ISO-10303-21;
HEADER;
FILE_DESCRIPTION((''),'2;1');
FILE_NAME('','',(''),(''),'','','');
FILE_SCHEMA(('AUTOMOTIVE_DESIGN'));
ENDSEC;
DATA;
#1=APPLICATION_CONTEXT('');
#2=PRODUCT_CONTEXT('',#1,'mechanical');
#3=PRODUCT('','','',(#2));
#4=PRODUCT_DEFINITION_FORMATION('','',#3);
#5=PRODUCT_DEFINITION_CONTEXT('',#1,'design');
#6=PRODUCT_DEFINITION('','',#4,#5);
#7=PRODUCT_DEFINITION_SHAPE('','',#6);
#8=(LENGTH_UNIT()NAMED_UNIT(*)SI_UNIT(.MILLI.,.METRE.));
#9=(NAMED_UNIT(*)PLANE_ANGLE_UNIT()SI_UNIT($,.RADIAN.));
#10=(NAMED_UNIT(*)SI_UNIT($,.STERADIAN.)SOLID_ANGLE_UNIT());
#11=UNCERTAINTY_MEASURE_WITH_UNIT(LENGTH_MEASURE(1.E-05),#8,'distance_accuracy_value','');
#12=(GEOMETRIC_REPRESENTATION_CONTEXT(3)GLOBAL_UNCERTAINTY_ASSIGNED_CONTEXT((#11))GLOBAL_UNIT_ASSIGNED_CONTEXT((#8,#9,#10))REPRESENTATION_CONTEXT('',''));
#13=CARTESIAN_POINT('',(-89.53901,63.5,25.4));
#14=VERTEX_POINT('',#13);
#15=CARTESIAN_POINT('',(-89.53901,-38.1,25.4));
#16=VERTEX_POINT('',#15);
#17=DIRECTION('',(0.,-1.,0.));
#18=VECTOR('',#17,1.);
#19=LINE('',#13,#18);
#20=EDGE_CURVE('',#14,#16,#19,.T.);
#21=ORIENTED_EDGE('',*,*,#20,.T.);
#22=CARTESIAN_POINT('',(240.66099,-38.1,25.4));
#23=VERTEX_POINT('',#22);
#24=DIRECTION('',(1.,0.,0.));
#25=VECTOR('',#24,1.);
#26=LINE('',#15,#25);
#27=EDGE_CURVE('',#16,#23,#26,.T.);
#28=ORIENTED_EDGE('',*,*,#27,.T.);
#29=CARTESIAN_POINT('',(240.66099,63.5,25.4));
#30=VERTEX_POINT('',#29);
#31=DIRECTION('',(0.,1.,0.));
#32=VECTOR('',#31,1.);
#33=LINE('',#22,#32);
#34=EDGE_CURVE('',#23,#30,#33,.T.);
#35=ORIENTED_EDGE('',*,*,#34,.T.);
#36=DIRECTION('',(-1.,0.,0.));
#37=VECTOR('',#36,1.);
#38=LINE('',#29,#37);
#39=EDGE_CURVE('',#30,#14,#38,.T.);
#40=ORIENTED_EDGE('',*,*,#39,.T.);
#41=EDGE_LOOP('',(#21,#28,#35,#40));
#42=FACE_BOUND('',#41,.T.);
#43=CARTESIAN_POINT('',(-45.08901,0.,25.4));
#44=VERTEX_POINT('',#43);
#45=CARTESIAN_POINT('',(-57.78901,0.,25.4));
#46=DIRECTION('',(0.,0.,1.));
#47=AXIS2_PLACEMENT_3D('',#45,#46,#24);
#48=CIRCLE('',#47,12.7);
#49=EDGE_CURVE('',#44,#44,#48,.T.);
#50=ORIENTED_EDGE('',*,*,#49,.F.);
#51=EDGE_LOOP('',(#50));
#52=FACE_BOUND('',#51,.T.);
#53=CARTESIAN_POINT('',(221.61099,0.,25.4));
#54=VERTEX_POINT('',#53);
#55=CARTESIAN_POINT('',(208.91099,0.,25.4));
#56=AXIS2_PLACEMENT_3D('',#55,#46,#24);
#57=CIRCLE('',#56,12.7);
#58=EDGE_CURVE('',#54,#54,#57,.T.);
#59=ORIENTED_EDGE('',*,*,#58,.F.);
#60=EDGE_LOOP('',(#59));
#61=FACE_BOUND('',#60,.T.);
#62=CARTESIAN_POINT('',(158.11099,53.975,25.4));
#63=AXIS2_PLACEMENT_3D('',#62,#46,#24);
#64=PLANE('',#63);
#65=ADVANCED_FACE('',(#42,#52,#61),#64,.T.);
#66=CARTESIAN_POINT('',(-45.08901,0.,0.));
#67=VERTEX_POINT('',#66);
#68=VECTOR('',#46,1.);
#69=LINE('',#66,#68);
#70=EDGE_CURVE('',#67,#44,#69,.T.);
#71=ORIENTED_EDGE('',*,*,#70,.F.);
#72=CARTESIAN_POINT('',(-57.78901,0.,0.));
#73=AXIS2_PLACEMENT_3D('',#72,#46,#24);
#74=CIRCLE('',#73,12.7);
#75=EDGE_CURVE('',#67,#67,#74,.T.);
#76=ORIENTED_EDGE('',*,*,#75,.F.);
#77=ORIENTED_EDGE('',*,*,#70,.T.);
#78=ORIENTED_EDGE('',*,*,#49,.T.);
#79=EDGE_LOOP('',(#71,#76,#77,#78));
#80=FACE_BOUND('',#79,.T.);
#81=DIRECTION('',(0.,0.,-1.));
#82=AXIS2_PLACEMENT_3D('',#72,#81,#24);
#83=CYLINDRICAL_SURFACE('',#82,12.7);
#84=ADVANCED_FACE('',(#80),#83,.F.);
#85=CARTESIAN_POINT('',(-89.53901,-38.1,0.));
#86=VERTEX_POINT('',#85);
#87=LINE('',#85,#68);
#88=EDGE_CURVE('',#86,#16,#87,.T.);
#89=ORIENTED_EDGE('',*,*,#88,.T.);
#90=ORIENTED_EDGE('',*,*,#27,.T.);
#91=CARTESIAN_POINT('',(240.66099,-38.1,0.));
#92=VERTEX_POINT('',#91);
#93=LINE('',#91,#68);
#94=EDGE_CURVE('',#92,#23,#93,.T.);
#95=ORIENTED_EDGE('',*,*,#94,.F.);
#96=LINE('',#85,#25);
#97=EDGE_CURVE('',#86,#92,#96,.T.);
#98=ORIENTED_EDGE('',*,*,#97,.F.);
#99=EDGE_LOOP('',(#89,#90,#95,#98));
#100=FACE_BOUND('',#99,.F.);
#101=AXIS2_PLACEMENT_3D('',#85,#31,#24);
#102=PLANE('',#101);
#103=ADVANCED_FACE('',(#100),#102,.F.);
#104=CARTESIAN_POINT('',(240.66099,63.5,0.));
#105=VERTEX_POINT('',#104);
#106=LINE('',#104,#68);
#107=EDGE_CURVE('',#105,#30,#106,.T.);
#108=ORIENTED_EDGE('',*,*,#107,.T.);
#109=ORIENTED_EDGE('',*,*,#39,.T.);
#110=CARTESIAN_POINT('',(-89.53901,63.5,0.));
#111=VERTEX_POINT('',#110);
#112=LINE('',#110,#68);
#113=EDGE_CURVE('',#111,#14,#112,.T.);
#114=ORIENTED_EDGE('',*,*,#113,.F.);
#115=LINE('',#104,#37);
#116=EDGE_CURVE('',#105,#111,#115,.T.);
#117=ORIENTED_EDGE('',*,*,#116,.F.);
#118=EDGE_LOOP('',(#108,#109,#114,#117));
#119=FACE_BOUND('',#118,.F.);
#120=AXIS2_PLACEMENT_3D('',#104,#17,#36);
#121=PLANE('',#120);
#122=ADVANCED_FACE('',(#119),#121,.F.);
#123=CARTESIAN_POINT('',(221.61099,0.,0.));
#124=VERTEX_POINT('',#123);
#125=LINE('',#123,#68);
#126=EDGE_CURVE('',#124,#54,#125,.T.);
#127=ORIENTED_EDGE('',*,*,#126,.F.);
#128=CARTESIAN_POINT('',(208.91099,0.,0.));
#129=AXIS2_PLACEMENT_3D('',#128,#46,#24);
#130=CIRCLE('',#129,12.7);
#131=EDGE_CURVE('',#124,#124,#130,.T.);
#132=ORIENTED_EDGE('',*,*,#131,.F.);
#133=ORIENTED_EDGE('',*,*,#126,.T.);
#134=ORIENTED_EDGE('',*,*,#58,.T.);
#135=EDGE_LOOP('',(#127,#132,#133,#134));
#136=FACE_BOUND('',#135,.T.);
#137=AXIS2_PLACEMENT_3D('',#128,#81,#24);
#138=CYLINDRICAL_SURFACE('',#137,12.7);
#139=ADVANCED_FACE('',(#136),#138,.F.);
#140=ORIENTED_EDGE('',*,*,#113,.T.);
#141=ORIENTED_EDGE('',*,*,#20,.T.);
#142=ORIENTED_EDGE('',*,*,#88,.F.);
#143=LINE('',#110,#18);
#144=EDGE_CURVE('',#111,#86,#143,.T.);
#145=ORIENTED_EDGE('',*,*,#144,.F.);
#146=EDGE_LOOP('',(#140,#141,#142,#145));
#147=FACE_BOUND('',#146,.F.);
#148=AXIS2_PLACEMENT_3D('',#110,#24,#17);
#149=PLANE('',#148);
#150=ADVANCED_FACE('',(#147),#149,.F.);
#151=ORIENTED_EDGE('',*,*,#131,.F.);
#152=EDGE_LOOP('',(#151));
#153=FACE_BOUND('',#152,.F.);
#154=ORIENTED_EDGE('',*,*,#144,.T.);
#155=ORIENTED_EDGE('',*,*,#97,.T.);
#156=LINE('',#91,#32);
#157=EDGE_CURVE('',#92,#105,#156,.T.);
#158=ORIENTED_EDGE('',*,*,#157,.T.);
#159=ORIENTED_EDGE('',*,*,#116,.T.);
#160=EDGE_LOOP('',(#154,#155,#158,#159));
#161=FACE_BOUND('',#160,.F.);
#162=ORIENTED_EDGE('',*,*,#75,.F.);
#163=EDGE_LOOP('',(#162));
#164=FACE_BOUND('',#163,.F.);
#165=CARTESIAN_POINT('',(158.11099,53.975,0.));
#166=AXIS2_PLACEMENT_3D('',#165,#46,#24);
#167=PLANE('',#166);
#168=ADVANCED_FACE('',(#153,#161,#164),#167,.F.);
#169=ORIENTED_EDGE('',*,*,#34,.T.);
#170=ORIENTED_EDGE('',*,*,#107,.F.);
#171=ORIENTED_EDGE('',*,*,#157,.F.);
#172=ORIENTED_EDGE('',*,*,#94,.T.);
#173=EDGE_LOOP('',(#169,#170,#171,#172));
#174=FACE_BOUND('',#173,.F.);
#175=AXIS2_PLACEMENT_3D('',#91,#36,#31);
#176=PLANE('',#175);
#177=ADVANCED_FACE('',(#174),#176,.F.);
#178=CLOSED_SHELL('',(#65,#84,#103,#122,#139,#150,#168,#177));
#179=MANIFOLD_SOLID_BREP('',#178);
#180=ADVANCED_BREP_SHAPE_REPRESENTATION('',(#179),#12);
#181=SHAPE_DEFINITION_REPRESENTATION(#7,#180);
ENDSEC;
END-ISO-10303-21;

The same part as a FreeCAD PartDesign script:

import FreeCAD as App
import Part
import Sketcher
Q = App.Units.Quantity


def add_polygon(sketch, points):
    """Adds a closed chain of lines whose ends are joined by coincident constraints."""
    first, n = sketch.GeometryCount, len(points)
    for a, b in zip(points, points[1:] + points[:1]):
        sketch.addGeometry(Part.LineSegment(App.Vector(*a, 0), App.Vector(*b, 0)), False)
    for i in range(n):
        sketch.addConstraint(Sketcher.Constraint("Coincident", first + i, 2, first + (i + 1) % n, 1))

doc = App.newDocument("Part")
params = doc.addObject("Spreadsheet::Sheet", "Params")
for row, (alias, value) in enumerate([
    ("sketch1_diameter", "1 in"),
    ("sketch1_width", "13 in"),
    ("sketch1_height", "4 in"),
    ("pad1_length", "1 in"),
], start=1):
    params.set(f"A{row}", alias)
    params.set(f"B{row}", "=" + value)
    params.setAlias(f"B{row}", alias)

body = doc.addObject("PartDesign::Body", "Body")

sketch1 = body.newObject("Sketcher::SketchObject", "Sketch")
sketch1.AttachmentSupport = (doc.getObject("XY_Plane"), [""])
sketch1.MapMode = "FlatFace"
add_polygon(sketch1, [(241, 64), (-90, 64), (-90, -38), (241, -38)])
sketch1.addGeometry(Part.Circle(App.Vector(-58, 0, 0), App.Vector(0, 0, 1), 13), False)
sketch1.addGeometry(Part.Circle(App.Vector(209, 0, 0), App.Vector(0, 0, 1), 13), False)
sketch1.addConstraint(Sketcher.Constraint("Horizontal", 0))
sketch1.addConstraint(Sketcher.Constraint("Vertical", 1))
sketch1.addConstraint(Sketcher.Constraint("Horizontal", 2))
sketch1.addConstraint(Sketcher.Constraint("Vertical", 3))
sketch1.addConstraint(Sketcher.Constraint("Equal", 4, 5))
sketch1.addConstraint(Sketcher.Constraint("PointOnObject", 4, 3, -1))
sketch1.addConstraint(Sketcher.Constraint("PointOnObject", 5, 3, -1))
sketch1.addConstraint(Sketcher.Constraint("Diameter", 4, Q("1 in")))
sketch1.addConstraint(Sketcher.Constraint("DistanceX", 0, 2, 0, 1, Q("13 in")))
sketch1.addConstraint(Sketcher.Constraint("DistanceY", 1, 2, 1, 1, Q("4 in")))
sketch1.addConstraint(Sketcher.Constraint("DistanceY", -1, 1, 0, 2, Q("2.5 in")))
sketch1.addConstraint(Sketcher.Constraint("DistanceX", 4, 3, 5, 3, Q("10.5 in")))
sketch1.addConstraint(Sketcher.Constraint("DistanceX", 0, 2, 4, 3, Q("1.25 in")))
sketch1.addConstraint(Sketcher.Constraint("DistanceX", 4, 3, -1, 1, Q("57.78901 mm")))
sketch1.setExpression("Constraints[11]", "Params.sketch1_diameter")
sketch1.setExpression("Constraints[12]", "Params.sketch1_width")
sketch1.setExpression("Constraints[13]", "Params.sketch1_height")
pad1 = body.newObject("PartDesign::Pad", "Pad")
pad1.Profile = sketch1
pad1.setExpression("Length", "Params.pad1_length")

doc.recompute()
